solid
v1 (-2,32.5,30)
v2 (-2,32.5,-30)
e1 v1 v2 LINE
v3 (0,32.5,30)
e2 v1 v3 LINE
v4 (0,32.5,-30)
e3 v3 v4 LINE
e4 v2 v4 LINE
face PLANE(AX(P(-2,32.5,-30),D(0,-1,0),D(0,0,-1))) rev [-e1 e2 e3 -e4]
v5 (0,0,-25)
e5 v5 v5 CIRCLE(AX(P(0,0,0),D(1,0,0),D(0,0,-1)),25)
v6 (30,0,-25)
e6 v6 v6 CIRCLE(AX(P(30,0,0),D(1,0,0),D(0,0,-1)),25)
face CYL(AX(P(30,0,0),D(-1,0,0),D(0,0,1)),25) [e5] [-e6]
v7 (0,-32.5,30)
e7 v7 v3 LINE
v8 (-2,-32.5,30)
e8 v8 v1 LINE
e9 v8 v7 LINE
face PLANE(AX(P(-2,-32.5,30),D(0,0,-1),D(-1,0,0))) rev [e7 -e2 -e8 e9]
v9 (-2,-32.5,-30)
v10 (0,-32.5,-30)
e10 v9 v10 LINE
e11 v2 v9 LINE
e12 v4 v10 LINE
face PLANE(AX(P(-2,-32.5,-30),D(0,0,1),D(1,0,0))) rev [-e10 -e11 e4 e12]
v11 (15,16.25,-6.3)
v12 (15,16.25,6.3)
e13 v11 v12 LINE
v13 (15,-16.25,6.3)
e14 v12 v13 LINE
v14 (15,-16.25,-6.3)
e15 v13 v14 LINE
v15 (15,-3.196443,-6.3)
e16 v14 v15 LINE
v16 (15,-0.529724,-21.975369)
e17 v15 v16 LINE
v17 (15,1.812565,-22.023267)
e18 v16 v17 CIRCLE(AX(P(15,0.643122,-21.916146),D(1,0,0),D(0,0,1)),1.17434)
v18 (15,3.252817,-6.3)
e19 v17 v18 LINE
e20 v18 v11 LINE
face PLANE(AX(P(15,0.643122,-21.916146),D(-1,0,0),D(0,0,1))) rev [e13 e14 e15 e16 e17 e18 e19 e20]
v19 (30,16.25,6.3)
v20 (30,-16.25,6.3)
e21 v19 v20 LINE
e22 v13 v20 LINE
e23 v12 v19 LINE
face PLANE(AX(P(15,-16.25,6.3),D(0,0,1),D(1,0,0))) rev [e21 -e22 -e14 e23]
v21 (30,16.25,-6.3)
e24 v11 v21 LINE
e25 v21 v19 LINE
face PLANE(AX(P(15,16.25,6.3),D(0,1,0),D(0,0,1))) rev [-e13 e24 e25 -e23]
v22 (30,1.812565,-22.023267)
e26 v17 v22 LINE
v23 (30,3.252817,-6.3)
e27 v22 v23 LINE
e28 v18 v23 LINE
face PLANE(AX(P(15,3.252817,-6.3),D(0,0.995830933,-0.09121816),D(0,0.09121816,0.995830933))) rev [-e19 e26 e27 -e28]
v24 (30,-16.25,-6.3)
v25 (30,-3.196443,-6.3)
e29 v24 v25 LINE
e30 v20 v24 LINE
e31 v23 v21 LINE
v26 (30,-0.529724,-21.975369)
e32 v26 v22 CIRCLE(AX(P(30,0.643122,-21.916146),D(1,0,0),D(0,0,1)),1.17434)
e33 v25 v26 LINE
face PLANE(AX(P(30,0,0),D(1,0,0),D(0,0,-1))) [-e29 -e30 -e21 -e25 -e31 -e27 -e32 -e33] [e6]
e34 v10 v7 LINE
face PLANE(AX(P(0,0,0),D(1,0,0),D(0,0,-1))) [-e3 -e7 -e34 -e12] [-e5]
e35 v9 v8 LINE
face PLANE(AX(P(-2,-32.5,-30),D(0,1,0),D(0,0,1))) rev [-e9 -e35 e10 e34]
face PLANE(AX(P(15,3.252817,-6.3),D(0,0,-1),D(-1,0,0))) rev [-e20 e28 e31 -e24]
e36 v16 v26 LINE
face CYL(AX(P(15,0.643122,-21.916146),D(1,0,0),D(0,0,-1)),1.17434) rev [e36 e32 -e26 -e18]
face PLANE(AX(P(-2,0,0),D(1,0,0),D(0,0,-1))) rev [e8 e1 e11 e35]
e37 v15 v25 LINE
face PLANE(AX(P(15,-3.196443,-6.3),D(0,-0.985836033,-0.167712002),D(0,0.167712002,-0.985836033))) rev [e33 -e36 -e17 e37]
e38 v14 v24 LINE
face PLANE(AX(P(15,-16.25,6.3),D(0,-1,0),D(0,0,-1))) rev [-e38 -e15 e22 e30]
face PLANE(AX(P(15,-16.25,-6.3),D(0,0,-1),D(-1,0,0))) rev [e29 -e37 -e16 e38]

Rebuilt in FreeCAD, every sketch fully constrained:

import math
import FreeCAD as App
import Part
import Sketcher

doc = App.newDocument("Part")
params = doc.addObject("Spreadsheet::Sheet", "Params")
for row, (alias, value) in enumerate([
    ("sketch1_diameter", "50 mm"),
    ("pad1_length", "30 mm"),
    ("sketch2_width", "32.5 mm"),
    ("sketch2_height", "12.6 mm"),
    ("pocket1_length", "15 mm"),
    ("sketch3_width", "65 mm"),
    ("sketch3_height", "60 mm"),
    ("pad2_length", "2 mm"),
], start=1):
    params.set(f"A{row}", alias)
    params.set(f"B{row}", "=" + value)
    params.setAlias(f"B{row}", alias)

body = doc.addObject("PartDesign::Body", "Body")

# Sketch on YZ plane
sketch1 = body.newObject("Sketcher::SketchObject", "Sketch")
sketch1.AttachmentSupport = (doc.getObject("YZ_Plane"), [""])
sketch1.MapMode = "FlatFace"
sketch1.addGeometry(Part.Circle(App.Vector(0, 0, 0), App.Vector(0, 0, 1), 25), False)
sketch1.addConstraint(Sketcher.Constraint("Coincident", 0, 3, -1, 1))
sketch1.addConstraint(Sketcher.Constraint("Diameter", 0, 50.0))
sketch1.setExpression("Constraints[1]", "Params.sketch1_diameter")
pad1 = body.newObject("PartDesign::Pad", "Pad")
pad1.Profile = sketch1
pad1.setExpression("Length", "Params.pad1_length")

# Sketch on YZ plane
sketch2 = body.newObject("Sketcher::SketchObject", "Sketch001")
sketch2.AttachmentSupport = (doc.getObject("YZ_Plane"), [""])
sketch2.MapMode = "FlatFace"
sketch2.AttachmentOffset = App.Placement(App.Vector(0, 0, 30), App.Rotation())
sketch2.addGeometry(Part.LineSegment(App.Vector(1.812565, -22.023267, 0), App.Vector(3.252817, -6.3, 0)), False)
sketch2.addGeometry(Part.LineSegment(App.Vector(3.252817, -6.3, 0), App.Vector(16.25, -6.3, 0)), False)
sketch2.addGeometry(Part.LineSegment(App.Vector(16.25, -6.3, 0), App.Vector(16.25, 6.3, 0)), False)
sketch2.addGeometry(Part.LineSegment(App.Vector(16.25, 6.3, 0), App.Vector(-16.25, 6.3, 0)), False)
sketch2.addGeometry(Part.LineSegment(App.Vector(-16.25, 6.3, 0), App.Vector(-16.25, -6.3, 0)), False)
sketch2.addGeometry(Part.LineSegment(App.Vector(-16.25, -6.3, 0), App.Vector(-3.196443, -6.3, 0)), False)
sketch2.addGeometry(Part.LineSegment(App.Vector(-3.196443, -6.3, 0), App.Vector(-0.529724, -21.975369, 0)), False)
sketch2.addGeometry(Part.ArcOfCircle(Part.Circle(App.Vector(0.643122, -21.916146, 0), App.Vector(0, 0, 1), 1.17434), math.radians(-177.109327), math.radians(-5.233691)), False)
sketch2.addConstraint(Sketcher.Constraint("Coincident", 0, 2, 1, 1))
sketch2.addConstraint(Sketcher.Constraint("Coincident", 1, 2, 2, 1))
sketch2.addConstraint(Sketcher.Constraint("Coincident", 2, 2, 3, 1))
sketch2.addConstraint(Sketcher.Constraint("Coincident", 3, 2, 4, 1))
sketch2.addConstraint(Sketcher.Constraint("Coincident", 4, 2, 5, 1))
sketch2.addConstraint(Sketcher.Constraint("Coincident", 5, 2, 6, 1))
sketch2.addConstraint(Sketcher.Constraint("Coincident", 6, 2, 7, 1))
sketch2.addConstraint(Sketcher.Constraint("Tangent", 7, 2, 0, 1))
sketch2.addConstraint(Sketcher.Constraint("Horizontal", 1))
sketch2.addConstraint(Sketcher.Constraint("Vertical", 2))
sketch2.addConstraint(Sketcher.Constraint("Horizontal", 3))
sketch2.addConstraint(Sketcher.Constraint("Vertical", 4))
sketch2.addConstraint(Sketcher.Constraint("Horizontal", 5))
sketch2.addConstraint(Sketcher.Constraint("Symmetric", 1, 2, 3, 2, -1, 1))
sketch2.addConstraint(Sketcher.Constraint("Horizontal", 1, 2, 4, 2))
sketch2.addConstraint(Sketcher.Constraint("DistanceX", 3, 2, 3, 1, 32.5))
sketch2.addConstraint(Sketcher.Constraint("DistanceY", 2, 1, 2, 2, 12.6))
sketch2.addConstraint(Sketcher.Constraint("Radius", 7, 1.17434))
sketch2.addConstraint(Sketcher.Constraint("DistanceY", 7, 2, 6, 2, 0.047899))
sketch2.addConstraint(Sketcher.Constraint("DistanceX", 1, 1, 1, 2, 12.997183))
sketch2.addConstraint(Sketcher.Constraint("DistanceX", 5, 1, 5, 2, 13.053557))
sketch2.addConstraint(Sketcher.Constraint("DistanceX", -1, 1, 7, 3, 0.643122))
sketch2.addConstraint(Sketcher.Constraint("DistanceY", 6, 2, -1, 1, 21.975369))
sketch2.setExpression("Constraints[15]", "Params.sketch2_width")
sketch2.setExpression("Constraints[16]", "Params.sketch2_height")
pocket1 = body.newObject("PartDesign::Pocket", "Pocket")
pocket1.Profile = sketch2
pocket1.setExpression("Length", "Params.pocket1_length")

# Sketch on YZ plane
sketch3 = body.newObject("Sketcher::SketchObject", "Sketch002")
sketch3.AttachmentSupport = (doc.getObject("YZ_Plane"), [""])
sketch3.MapMode = "FlatFace"
sketch3.addGeometry(Part.LineSegment(App.Vector(32.5, -30, 0), App.Vector(-32.5, -30, 0)), False)
sketch3.addGeometry(Part.LineSegment(App.Vector(-32.5, -30, 0), App.Vector(-32.5, 30, 0)), False)
sketch3.addGeometry(Part.LineSegment(App.Vector(-32.5, 30, 0), App.Vector(32.5, 30, 0)), False)
sketch3.addGeometry(Part.LineSegment(App.Vector(32.5, 30, 0), App.Vector(32.5, -30, 0)), False)
sketch3.addConstraint(Sketcher.Constraint("Coincident", 0, 2, 1, 1))
sketch3.addConstraint(Sketcher.Constraint("Coincident", 1, 2, 2, 1))
sketch3.addConstraint(Sketcher.Constraint("Coincident", 2, 2, 3, 1))
sketch3.addConstraint(Sketcher.Constraint("Coincident", 3, 2, 0, 1))
sketch3.addConstraint(Sketcher.Constraint("Horizontal", 0))
sketch3.addConstraint(Sketcher.Constraint("Vertical", 1))
sketch3.addConstraint(Sketcher.Constraint("Horizontal", 2))
sketch3.addConstraint(Sketcher.Constraint("Vertical", 3))
sketch3.addConstraint(Sketcher.Constraint("Symmetric", 0, 2, 2, 2, -1, 1))
sketch3.addConstraint(Sketcher.Constraint("DistanceX", 0, 2, 0, 1, 65.0))
sketch3.addConstraint(Sketcher.Constraint("DistanceY", 1, 1, 1, 2, 60.0))
sketch3.setExpression("Constraints[9]", "Params.sketch3_width")
sketch3.setExpression("Constraints[10]", "Params.sketch3_height")
pad2 = body.newObject("PartDesign::Pad", "Pad001")
pad2.Profile = sketch3
pad2.setExpression("Length", "Params.pad2_length")
pad2.Reversed = True

doc.recompute()
